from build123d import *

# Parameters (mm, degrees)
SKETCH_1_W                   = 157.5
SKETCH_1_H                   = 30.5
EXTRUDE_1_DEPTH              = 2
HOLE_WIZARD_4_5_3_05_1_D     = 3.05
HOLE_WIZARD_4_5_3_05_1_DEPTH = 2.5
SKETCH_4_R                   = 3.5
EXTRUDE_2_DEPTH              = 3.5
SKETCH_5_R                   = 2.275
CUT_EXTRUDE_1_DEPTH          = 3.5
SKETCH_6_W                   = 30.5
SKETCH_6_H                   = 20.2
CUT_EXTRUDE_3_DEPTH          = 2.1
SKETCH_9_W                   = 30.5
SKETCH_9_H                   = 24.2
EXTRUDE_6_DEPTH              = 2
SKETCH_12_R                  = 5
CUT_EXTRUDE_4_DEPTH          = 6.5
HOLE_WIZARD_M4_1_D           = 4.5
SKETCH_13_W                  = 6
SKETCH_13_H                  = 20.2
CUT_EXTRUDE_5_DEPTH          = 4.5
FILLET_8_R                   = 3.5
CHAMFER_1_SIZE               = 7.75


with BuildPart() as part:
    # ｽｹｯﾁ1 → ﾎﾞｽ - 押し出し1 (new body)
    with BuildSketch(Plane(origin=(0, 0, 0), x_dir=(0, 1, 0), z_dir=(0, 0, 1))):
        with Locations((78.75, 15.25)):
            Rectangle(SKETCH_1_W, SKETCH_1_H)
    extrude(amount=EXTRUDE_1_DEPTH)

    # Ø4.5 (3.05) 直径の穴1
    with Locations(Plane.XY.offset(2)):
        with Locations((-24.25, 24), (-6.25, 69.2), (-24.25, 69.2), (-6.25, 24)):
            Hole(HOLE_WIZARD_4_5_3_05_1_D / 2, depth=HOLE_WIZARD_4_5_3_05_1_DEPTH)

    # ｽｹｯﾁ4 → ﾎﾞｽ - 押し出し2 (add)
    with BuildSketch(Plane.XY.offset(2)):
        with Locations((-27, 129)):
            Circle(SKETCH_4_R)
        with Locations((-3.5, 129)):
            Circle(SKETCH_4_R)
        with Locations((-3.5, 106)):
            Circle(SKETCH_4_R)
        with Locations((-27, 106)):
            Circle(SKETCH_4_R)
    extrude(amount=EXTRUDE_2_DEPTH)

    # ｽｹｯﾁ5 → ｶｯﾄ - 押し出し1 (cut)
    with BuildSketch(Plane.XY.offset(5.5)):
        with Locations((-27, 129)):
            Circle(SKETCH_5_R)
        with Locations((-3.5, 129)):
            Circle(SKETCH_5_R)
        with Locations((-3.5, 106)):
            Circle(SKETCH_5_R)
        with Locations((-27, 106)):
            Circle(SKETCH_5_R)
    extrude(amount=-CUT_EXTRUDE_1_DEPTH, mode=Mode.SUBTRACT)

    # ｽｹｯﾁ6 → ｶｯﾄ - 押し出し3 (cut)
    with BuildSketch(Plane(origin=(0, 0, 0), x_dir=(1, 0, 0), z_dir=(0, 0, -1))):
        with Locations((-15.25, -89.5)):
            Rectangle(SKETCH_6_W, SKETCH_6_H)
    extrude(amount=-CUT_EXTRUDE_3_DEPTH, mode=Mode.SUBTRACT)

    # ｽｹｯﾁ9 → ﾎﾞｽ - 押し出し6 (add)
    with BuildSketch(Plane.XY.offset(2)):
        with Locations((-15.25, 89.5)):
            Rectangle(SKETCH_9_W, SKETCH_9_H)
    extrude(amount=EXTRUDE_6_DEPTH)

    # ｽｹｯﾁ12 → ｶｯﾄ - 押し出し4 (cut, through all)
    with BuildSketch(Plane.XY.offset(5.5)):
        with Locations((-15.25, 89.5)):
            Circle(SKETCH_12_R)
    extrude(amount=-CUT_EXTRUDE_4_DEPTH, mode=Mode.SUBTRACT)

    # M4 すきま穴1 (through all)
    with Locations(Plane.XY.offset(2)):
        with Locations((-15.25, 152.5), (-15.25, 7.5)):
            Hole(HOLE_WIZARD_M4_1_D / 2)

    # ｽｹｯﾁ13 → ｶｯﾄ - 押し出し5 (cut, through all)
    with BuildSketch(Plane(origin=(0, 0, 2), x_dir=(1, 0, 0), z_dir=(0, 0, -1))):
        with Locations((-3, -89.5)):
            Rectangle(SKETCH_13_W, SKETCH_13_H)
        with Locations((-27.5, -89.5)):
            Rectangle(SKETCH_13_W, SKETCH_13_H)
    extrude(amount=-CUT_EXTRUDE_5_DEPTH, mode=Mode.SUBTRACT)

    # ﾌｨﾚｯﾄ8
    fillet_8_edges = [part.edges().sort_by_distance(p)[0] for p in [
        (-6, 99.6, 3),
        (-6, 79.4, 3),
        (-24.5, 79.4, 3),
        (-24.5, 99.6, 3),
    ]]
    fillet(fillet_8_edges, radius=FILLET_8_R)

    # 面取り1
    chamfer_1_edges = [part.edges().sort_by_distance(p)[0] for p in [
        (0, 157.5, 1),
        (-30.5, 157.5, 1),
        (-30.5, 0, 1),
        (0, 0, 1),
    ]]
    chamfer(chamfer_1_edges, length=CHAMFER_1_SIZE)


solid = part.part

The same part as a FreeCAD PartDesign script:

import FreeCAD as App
import Part
import Sketcher

V = App.Vector
Q = App.Units.Quantity


def edges_at(feature, points):
    """Names of the edges that pass closest to the given points."""
    edges = feature.Shape.Edges
    near = lambda p: min(range(len(edges)), key=lambda i: edges[i].distToShape(Part.Vertex(*p))[0])
    return sorted({f"Edge{near(p) + 1}" for p in points})

doc = App.newDocument("Part")
body = doc.addObject("PartDesign::Body", "Body")
body.AllowCompound = True

sketch1 = body.newObject("Sketcher::SketchObject", "Sketch")
sketch1.AttachmentSupport = (doc.getObject("XY_Plane"), [""])
sketch1.MapMode = "FlatFace"
sketch1.addGeometry([
    Part.LineSegment(V(-30.5, 0, 0), V(0, 0, 0)),
    Part.LineSegment(V(0, 0, 0), V(0, 157.5, 0)),
    Part.LineSegment(V(0, 157.5, 0), V(-30.5, 157.5, 0)),
    Part.LineSegment(V(-30.5, 157.5, 0), V(-30.5, 0, 0)),
], False)
sketch1.addConstraint([
    Sketcher.Constraint("Coincident", 0, 2, 1, 1),
    Sketcher.Constraint("Coincident", 1, 2, 2, 1),
    Sketcher.Constraint("Coincident", 2, 2, 3, 1),
    Sketcher.Constraint("Coincident", 3, 2, 0, 1),
    Sketcher.Constraint("Horizontal", 0),
    Sketcher.Constraint("Vertical", 1),
    Sketcher.Constraint("Horizontal", 2),
    Sketcher.Constraint("Vertical", 3),
    Sketcher.Constraint("Coincident", 0, 2, -1, 1),
    Sketcher.Constraint("DistanceX", 0, 1, 0, 2, Q("30.5 mm")),
    Sketcher.Constraint("DistanceY", 1, 1, 1, 2, Q("157.5 mm")),
])
pad1 = body.newObject("PartDesign::Pad", "Pad")
pad1.Profile = sketch1
pad1.Length = 2

sketch2 = body.newObject("Sketcher::SketchObject", "Sketch001")
sketch2.AttachmentSupport = (doc.getObject("XY_Plane"), [""])
sketch2.MapMode = "FlatFace"
sketch2.AttachmentOffset = App.Placement(V(0, 0, 2), App.Rotation())
sketch2.addGeometry([
    Part.Circle(V(-24.25, 24, 0), V(0, 0, 1), 1.525),
    Part.Circle(V(-6.25, 69.2, 0), V(0, 0, 1), 1.525),
    Part.Circle(V(-24.25, 69.2, 0), V(0, 0, 1), 1.525),
    Part.Circle(V(-6.25, 24, 0), V(0, 0, 1), 1.525),
], False)
sketch2.addConstraint([
    Sketcher.Constraint("Equal", 0, 1),
    Sketcher.Constraint("Equal", 1, 2),
    Sketcher.Constraint("Equal", 2, 3),
    Sketcher.Constraint("Horizontal", 1, 3, 2, 3),
    Sketcher.Constraint("Horizontal", 0, 3, 3, 3),
    Sketcher.Constraint("Vertical", 0, 3, 2, 3),
    Sketcher.Constraint("Vertical", 1, 3, 3, 3),
    Sketcher.Constraint("Diameter", 0, Q("3.05 mm")),
    Sketcher.Constraint("DistanceY", -1, 1, 0, 3, Q("24 mm")),
    Sketcher.Constraint("DistanceX", 0, 3, 1, 3, Q("18 mm")),
    Sketcher.Constraint("DistanceY", -1, 1, 1, 3, Q("69.2 mm")),
    Sketcher.Constraint("DistanceX", 0, 3, -1, 1, Q("24.25 mm")),
])
doc.recompute()
hole = body.newObject("PartDesign::Hole", "Hole")
hole.Profile = sketch2
hole.ThreadType = "None"
hole.Diameter = 3.05
hole.DepthType = "Dimension"
hole.Depth = 2.5
hole.DrillPoint = "Flat"

sketch3 = body.newObject("Sketcher::SketchObject", "Sketch002")
sketch3.AttachmentSupport = (doc.getObject("XY_Plane"), [""])
sketch3.MapMode = "FlatFace"
sketch3.AttachmentOffset = App.Placement(V(0, 0, 2), App.Rotation())
sketch3.addGeometry([
    Part.Circle(V(-27, 129, 0), V(0, 0, 1), 3.5),
    Part.Circle(V(-3.5, 129, 0), V(0, 0, 1), 3.5),
    Part.Circle(V(-3.5, 106, 0), V(0, 0, 1), 3.5),
    Part.Circle(V(-27, 106, 0), V(0, 0, 1), 3.5),
], False)
sketch3.addConstraint([
    Sketcher.Constraint("Equal", 0, 1),
    Sketcher.Constraint("Equal", 1, 2),
    Sketcher.Constraint("Equal", 2, 3),
    Sketcher.Constraint("Horizontal", 0, 3, 1, 3),
    Sketcher.Constraint("Horizontal", 2, 3, 3, 3),
    Sketcher.Constraint("Vertical", 1, 3, 2, 3),
    Sketcher.Constraint("Vertical", 0, 3, 3, 3),
    Sketcher.Constraint("Diameter", 0, Q("7 mm")),
    Sketcher.Constraint("DistanceX", 0, 3, -1, 1, Q("27 mm")),
    Sketcher.Constraint("DistanceY", -1, 1, 0, 3, Q("129 mm")),
    Sketcher.Constraint("DistanceY", -1, 1, 2, 3, Q("106 mm")),
    Sketcher.Constraint("DistanceX", 1, 3, -1, 1, Q("3.5 mm")),
])
pad2 = body.newObject("PartDesign::Pad", "Pad001")
pad2.Profile = sketch3
pad2.Length = 3.5

sketch4 = body.newObject("Sketcher::SketchObject", "Sketch003")
sketch4.AttachmentSupport = (doc.getObject("XY_Plane"), [""])
sketch4.MapMode = "FlatFace"
sketch4.AttachmentOffset = App.Placement(V(0, 0, 5.5), App.Rotation())
sketch4.addGeometry([
    Part.Circle(V(-27, 129, 0), V(0, 0, 1), 2.275),
    Part.Circle(V(-3.5, 129, 0), V(0, 0, 1), 2.275),
    Part.Circle(V(-3.5, 106, 0), V(0, 0, 1), 2.275),
    Part.Circle(V(-27, 106, 0), V(0, 0, 1), 2.275),
], False)
sketch4.addConstraint([
    Sketcher.Constraint("Equal", 0, 1),
    Sketcher.Constraint("Equal", 1, 2),
    Sketcher.Constraint("Equal", 2, 3),
    Sketcher.Constraint("Horizontal", 0, 3, 1, 3),
    Sketcher.Constraint("Horizontal", 2, 3, 3, 3),
    Sketcher.Constraint("Vertical", 1, 3, 2, 3),
    Sketcher.Constraint("Vertical", 0, 3, 3, 3),
    Sketcher.Constraint("Diameter", 0, Q("4.55 mm")),
    Sketcher.Constraint("DistanceX", 0, 3, -1, 1, Q("27 mm")),
    Sketcher.Constraint("DistanceY", -1, 1, 0, 3, Q("129 mm")),
    Sketcher.Constraint("DistanceY", -1, 1, 2, 3, Q("106 mm")),
    Sketcher.Constraint("DistanceX", 1, 3, -1, 1, Q("3.5 mm")),
])
pocket1 = body.newObject("PartDesign::Pocket", "Pocket")
pocket1.Profile = sketch4
pocket1.Length = 3.5

sketch5 = body.newObject("Sketcher::SketchObject", "Sketch004")
sketch5.AttachmentSupport = (doc.getObject("XY_Plane"), [""])
sketch5.MapMode = "FlatFace"
sketch5.addGeometry([
    Part.LineSegment(V(-30.5, 79.4, 0), V(-30.5, 99.6, 0)),
    Part.LineSegment(V(-30.5, 99.6, 0), V(0, 99.6, 0)),
    Part.LineSegment(V(0, 99.6, 0), V(0, 79.4, 0)),
    Part.LineSegment(V(0, 79.4, 0), V(-30.5, 79.4, 0)),
], False)
sketch5.addConstraint([
    Sketcher.Constraint("Coincident", 0, 2, 1, 1),
    Sketcher.Constraint("Coincident", 1, 2, 2, 1),
    Sketcher.Constraint("Coincident", 2, 2, 3, 1),
    Sketcher.Constraint("Coincident", 3, 2, 0, 1),
    Sketcher.Constraint("Vertical", 0),
    Sketcher.Constraint("Horizontal", 1),
    Sketcher.Constraint("Vertical", 2),
    Sketcher.Constraint("Horizontal", 3),
    Sketcher.Constraint("PointOnObject", 1, 2, -2),
    Sketcher.Constraint("DistanceX", 1, 1, 1, 2, Q("30.5 mm")),
    Sketcher.Constraint("DistanceY", 0, 1, 0, 2, Q("20.2 mm")),
    Sketcher.Constraint("DistanceY", -1, 1, 0, 2, Q("99.6 mm")),
])
pocket2 = body.newObject("PartDesign::Pocket", "Pocket001")
pocket2.Profile = sketch5
pocket2.Length = 2.1
pocket2.Reversed = True

sketch6 = body.newObject("Sketcher::SketchObject", "Sketch005")
sketch6.AttachmentSupport = (doc.getObject("XY_Plane"), [""])
sketch6.MapMode = "FlatFace"
sketch6.AttachmentOffset = App.Placement(V(0, 0, 2), App.Rotation())
sketch6.addGeometry([
    Part.LineSegment(V(-30.5, 101.6, 0), V(-30.5, 77.4, 0)),
    Part.LineSegment(V(-30.5, 77.4, 0), V(0, 77.4, 0)),
    Part.LineSegment(V(0, 77.4, 0), V(0, 101.6, 0)),
    Part.LineSegment(V(0, 101.6, 0), V(-30.5, 101.6, 0)),
], False)
sketch6.addConstraint([
    Sketcher.Constraint("Coincident", 0, 2, 1, 1),
    Sketcher.Constraint("Coincident", 1, 2, 2, 1),
    Sketcher.Constraint("Coincident", 2, 2, 3, 1),
    Sketcher.Constraint("Coincident", 3, 2, 0, 1),
    Sketcher.Constraint("Vertical", 0),
    Sketcher.Constraint("Horizontal", 1),
    Sketcher.Constraint("Vertical", 2),
    Sketcher.Constraint("Horizontal", 3),
    Sketcher.Constraint("PointOnObject", 1, 2, -2),
    Sketcher.Constraint("DistanceX", 1, 1, 1, 2, Q("30.5 mm")),
    Sketcher.Constraint("DistanceY", 0, 2, 0, 1, Q("24.2 mm")),
    Sketcher.Constraint("DistanceY", -1, 1, 0, 2, Q("77.4 mm")),
])
pad3 = body.newObject("PartDesign::Pad", "Pad002")
pad3.Profile = sketch6
pad3.Length = 2

sketch7 = body.newObject("Sketcher::SketchObject", "Sketch006")
sketch7.AttachmentSupport = (doc.getObject("XY_Plane"), [""])
sketch7.MapMode = "FlatFace"
sketch7.AttachmentOffset = App.Placement(V(0, 0, 5.5), App.Rotation())
sketch7.addGeometry(Part.Circle(V(-15.25, 89.5, 0), V(0, 0, 1), 5), False)
sketch7.addConstraint([
    Sketcher.Constraint("Diameter", 0, Q("10 mm")),
    Sketcher.Constraint("DistanceY", -1, 1, 0, 3, Q("89.5 mm")),
    Sketcher.Constraint("DistanceX", 0, 3, -1, 1, Q("15.25 mm")),
])
pocket3 = body.newObject("PartDesign::Pocket", "Pocket002")
pocket3.Profile = sketch7
pocket3.Type = "ThroughAll"

sketch8 = body.newObject("Sketcher::SketchObject", "Sketch007")
sketch8.AttachmentSupport = (doc.getObject("XY_Plane"), [""])
sketch8.MapMode = "FlatFace"
sketch8.AttachmentOffset = App.Placement(V(0, 0, 2), App.Rotation())
sketch8.addGeometry([
    Part.Circle(V(-15.25, 152.5, 0), V(0, 0, 1), 2.25),
    Part.Circle(V(-15.25, 7.5, 0), V(0, 0, 1), 2.25),
], False)
sketch8.addConstraint([
    Sketcher.Constraint("Equal", 0, 1),
    Sketcher.Constraint("Vertical", 0, 3, 1, 3),
    Sketcher.Constraint("Diameter", 0, Q("4.5 mm")),
    Sketcher.Constraint("DistanceY", 1, 3, 0, 3, Q("145 mm")),
    Sketcher.Constraint("DistanceY", -1, 1, 0, 3, Q("152.5 mm")),
    Sketcher.Constraint("DistanceX", 0, 3, -1, 1, Q("15.25 mm")),
])
doc.recompute()
hole2 = body.newObject("PartDesign::Hole", "Hole001")
hole2.Profile = sketch8
hole2.ThreadType = "None"
hole2.Diameter = 4.5
hole2.DepthType = "ThroughAll"

sketch9 = body.newObject("Sketcher::SketchObject", "Sketch008")
sketch9.AttachmentSupport = (doc.getObject("XY_Plane"), [""])
sketch9.MapMode = "FlatFace"
sketch9.AttachmentOffset = App.Placement(V(0, 0, 2), App.Rotation())
sketch9.addGeometry([
    Part.LineSegment(V(-6, 79.4, 0), V(-6, 99.6, 0)),
    Part.LineSegment(V(-6, 99.6, 0), V(0, 99.6, 0)),
    Part.LineSegment(V(0, 99.6, 0), V(0, 79.4, 0)),
    Part.LineSegment(V(0, 79.4, 0), V(-6, 79.4, 0)),
    Part.LineSegment(V(-30.5, 79.4, 0), V(-30.5, 99.6, 0)),
    Part.LineSegment(V(-30.5, 99.6, 0), V(-24.5, 99.6, 0)),
    Part.LineSegment(V(-24.5, 99.6, 0), V(-24.5, 79.4, 0)),
    Part.LineSegment(V(-24.5, 79.4, 0), V(-30.5, 79.4, 0)),
], False)
sketch9.addConstraint([
    Sketcher.Constraint("Coincident", 0, 2, 1, 1),
    Sketcher.Constraint("Coincident", 1, 2, 2, 1),
    Sketcher.Constraint("Coincident", 2, 2, 3, 1),
    Sketcher.Constraint("Coincident", 3, 2, 0, 1),
    Sketcher.Constraint("Coincident", 4, 2, 5, 1),
    Sketcher.Constraint("Coincident", 5, 2, 6, 1),
    Sketcher.Constraint("Coincident", 6, 2, 7, 1),
    Sketcher.Constraint("Coincident", 7, 2, 4, 1),
    Sketcher.Constraint("Vertical", 0),
    Sketcher.Constraint("Horizontal", 1),
    Sketcher.Constraint("Vertical", 2),
    Sketcher.Constraint("Horizontal", 3),
    Sketcher.Constraint("Vertical", 4),
    Sketcher.Constraint("Horizontal", 5),
    Sketcher.Constraint("Vertical", 6),
    Sketcher.Constraint("Horizontal", 7),
    Sketcher.Constraint("PointOnObject", 1, 2, -2),
    Sketcher.Constraint("Horizontal", 1, 2, 4, 2),
    Sketcher.Constraint("Horizontal", 3, 2, 6, 2),
    Sketcher.Constraint("Equal", 3, 5),
    Sketcher.Constraint("DistanceX", 1, 1, 1, 2, Q("6 mm")),
    Sketcher.Constraint("DistanceY", 0, 1, 0, 2, Q("20.2 mm")),
    Sketcher.Constraint("DistanceY", -1, 1, 0, 2, Q("99.6 mm")),
    Sketcher.Constraint("DistanceX", 4, 2, -1, 1, Q("30.5 mm")),
])
pocket4 = body.newObject("PartDesign::Pocket", "Pocket003")
pocket4.Profile = sketch9
pocket4.Type = "ThroughAll"
pocket4.Reversed = True
doc.recompute()

fillet = body.newObject("PartDesign::Fillet", "Fillet")
fillet.Base = (pocket4, edges_at(pocket4, [
    (-6, 99.6, 3),
    (-6, 79.4, 3),
    (-24.5, 79.4, 3),
    (-24.5, 99.6, 3),
]))
fillet.Radius = 3.5
doc.recompute()

chamfer = body.newObject("PartDesign::Chamfer", "Chamfer")
chamfer.Base = (fillet, edges_at(fillet, [
    (0, 157.5, 1),
    (-30.5, 157.5, 1),
    (-30.5, 0, 1),
    (0, 0, 1),
]))
chamfer.Size = 7.75

doc.recompute()
